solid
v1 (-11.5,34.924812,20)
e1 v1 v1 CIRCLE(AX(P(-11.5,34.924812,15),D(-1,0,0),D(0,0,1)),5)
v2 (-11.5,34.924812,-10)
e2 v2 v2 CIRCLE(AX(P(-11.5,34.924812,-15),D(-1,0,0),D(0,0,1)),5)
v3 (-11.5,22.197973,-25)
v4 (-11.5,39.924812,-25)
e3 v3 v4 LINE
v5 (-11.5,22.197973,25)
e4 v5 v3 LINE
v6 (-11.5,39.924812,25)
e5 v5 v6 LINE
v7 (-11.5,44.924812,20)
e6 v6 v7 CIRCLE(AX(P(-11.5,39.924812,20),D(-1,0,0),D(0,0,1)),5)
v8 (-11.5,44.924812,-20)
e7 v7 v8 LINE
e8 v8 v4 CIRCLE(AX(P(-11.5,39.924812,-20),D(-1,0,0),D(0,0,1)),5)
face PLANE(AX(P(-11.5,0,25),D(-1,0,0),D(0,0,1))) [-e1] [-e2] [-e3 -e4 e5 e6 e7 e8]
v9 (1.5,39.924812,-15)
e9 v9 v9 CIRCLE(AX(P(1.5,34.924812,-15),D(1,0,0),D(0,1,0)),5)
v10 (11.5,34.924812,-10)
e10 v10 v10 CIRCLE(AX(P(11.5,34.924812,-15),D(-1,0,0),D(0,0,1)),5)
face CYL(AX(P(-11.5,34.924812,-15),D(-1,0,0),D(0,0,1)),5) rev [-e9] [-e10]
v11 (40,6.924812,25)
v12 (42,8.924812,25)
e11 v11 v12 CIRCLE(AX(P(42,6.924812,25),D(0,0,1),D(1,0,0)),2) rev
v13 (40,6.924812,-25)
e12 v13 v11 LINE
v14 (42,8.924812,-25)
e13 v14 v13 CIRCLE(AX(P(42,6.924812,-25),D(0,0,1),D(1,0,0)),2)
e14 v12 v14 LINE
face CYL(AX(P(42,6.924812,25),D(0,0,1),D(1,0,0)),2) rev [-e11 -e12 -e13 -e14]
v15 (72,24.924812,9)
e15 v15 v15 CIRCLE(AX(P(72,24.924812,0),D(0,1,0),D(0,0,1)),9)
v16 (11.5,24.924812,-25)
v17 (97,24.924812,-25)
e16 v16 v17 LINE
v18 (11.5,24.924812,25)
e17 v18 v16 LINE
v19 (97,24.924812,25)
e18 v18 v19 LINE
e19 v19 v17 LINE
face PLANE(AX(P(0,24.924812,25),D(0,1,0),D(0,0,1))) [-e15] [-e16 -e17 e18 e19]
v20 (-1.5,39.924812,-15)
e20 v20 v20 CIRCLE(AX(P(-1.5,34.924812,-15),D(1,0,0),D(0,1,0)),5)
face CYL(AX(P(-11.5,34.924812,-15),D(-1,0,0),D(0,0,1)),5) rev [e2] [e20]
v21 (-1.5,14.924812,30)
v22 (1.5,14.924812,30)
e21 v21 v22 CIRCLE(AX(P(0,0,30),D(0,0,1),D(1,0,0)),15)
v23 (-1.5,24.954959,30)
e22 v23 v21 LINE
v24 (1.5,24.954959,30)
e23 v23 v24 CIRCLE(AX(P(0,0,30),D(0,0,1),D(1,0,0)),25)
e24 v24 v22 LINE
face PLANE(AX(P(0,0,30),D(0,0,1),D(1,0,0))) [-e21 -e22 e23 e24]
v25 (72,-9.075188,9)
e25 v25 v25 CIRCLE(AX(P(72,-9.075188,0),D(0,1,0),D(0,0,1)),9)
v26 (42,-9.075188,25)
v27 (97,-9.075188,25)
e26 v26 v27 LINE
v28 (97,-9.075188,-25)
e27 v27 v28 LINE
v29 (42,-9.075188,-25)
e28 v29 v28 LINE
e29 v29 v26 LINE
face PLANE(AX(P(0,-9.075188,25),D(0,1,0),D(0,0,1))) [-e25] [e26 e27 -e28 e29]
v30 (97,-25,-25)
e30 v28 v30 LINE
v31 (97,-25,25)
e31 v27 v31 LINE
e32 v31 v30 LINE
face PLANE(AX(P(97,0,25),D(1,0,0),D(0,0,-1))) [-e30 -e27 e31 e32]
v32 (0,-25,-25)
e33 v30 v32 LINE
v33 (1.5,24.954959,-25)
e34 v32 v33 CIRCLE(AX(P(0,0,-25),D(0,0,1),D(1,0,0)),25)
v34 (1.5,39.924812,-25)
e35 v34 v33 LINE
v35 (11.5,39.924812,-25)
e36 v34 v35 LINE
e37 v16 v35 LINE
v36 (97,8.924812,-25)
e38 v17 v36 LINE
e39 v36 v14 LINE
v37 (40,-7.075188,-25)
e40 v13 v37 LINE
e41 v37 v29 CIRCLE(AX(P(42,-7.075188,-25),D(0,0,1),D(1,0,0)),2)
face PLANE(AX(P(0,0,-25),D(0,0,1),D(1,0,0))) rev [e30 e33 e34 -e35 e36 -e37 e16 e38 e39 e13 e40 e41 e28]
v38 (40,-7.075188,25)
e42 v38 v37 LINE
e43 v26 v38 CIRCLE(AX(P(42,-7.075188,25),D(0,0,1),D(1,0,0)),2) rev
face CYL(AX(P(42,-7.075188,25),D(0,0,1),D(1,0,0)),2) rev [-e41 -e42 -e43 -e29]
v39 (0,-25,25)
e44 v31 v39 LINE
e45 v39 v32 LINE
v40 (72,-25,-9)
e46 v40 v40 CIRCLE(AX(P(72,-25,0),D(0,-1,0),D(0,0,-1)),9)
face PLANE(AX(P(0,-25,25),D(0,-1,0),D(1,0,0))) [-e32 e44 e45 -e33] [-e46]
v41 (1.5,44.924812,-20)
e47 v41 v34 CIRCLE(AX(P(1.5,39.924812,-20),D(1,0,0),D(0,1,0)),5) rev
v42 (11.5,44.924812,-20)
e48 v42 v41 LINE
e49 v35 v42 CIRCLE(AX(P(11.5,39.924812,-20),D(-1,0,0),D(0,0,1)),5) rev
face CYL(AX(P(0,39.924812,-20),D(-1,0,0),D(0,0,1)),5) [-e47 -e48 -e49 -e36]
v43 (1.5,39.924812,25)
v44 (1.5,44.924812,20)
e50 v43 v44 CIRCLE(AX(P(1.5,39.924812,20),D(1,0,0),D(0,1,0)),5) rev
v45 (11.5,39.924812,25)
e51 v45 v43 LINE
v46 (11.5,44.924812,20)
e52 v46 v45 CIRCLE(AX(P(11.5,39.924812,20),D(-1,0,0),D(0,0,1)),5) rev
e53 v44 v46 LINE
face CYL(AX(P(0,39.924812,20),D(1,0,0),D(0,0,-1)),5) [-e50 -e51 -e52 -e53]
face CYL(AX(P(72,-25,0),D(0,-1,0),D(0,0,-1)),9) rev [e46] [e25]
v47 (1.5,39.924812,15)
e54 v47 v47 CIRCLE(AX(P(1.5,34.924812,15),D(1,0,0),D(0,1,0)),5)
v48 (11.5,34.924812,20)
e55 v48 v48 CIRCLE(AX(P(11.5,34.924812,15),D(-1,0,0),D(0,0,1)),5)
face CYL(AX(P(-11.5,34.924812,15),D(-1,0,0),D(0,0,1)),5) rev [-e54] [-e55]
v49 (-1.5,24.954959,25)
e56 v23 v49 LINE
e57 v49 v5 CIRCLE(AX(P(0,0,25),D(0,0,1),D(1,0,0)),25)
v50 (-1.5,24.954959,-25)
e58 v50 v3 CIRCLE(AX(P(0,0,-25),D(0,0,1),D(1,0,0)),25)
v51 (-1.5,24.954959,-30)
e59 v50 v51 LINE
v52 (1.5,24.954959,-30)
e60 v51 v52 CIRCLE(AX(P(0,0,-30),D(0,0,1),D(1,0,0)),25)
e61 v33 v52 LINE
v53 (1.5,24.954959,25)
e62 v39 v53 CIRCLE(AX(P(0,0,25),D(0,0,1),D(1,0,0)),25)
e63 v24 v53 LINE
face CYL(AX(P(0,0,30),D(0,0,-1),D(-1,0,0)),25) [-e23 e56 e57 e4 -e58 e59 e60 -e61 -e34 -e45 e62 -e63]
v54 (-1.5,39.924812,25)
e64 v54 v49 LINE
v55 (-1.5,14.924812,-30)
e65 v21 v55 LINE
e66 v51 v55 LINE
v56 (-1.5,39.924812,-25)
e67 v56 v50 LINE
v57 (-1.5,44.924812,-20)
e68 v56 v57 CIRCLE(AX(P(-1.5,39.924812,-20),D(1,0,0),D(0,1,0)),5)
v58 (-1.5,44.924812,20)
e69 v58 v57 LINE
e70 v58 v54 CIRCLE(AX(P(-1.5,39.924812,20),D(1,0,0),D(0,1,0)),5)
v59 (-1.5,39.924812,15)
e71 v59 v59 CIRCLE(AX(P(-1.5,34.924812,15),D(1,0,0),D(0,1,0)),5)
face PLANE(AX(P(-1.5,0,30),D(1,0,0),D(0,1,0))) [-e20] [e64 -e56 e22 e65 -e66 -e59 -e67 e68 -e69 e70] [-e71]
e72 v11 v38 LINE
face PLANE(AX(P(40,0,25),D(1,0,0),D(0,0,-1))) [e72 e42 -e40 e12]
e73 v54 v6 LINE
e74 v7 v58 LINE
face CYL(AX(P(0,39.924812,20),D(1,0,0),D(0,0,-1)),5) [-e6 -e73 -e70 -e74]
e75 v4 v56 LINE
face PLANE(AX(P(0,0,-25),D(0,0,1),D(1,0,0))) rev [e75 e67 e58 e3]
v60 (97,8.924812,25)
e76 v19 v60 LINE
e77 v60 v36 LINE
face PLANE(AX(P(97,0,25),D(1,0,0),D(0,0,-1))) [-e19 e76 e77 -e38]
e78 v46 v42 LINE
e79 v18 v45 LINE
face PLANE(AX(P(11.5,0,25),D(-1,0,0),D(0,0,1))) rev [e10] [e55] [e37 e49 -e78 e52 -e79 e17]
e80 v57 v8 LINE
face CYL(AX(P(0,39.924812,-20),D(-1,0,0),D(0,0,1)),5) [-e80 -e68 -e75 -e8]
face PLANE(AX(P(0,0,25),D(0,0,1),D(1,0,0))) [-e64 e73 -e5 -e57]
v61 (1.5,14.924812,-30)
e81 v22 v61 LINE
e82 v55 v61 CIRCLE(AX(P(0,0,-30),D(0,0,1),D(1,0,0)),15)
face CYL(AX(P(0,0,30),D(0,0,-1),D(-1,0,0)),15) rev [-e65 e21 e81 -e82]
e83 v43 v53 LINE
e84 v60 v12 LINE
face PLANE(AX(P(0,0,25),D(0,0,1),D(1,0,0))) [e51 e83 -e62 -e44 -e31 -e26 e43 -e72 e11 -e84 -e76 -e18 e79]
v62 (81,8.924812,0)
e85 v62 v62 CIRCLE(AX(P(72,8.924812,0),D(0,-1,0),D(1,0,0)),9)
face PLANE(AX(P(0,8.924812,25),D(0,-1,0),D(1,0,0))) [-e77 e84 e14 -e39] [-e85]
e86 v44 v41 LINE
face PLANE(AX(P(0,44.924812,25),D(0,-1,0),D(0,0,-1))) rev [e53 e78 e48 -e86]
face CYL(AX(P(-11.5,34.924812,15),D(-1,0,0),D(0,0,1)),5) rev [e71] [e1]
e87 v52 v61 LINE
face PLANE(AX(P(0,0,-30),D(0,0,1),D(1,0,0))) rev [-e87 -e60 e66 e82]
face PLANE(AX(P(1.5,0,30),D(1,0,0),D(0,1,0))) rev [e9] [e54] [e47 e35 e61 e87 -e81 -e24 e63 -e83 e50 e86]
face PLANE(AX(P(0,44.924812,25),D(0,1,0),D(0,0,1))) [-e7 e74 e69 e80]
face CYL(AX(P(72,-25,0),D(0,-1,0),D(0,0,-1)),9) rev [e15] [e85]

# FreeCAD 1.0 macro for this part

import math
import FreeCAD as App
import Part
import Sketcher

V = App.Vector


def edges_at(feature, points):
    """Names of the edges that pass closest to the given points."""
    edges = feature.Shape.Edges
    near = lambda p: min(range(len(edges)), key=lambda i: edges[i].distToShape(Part.Vertex(*p))[0])
    return sorted({f"Edge{near(p) + 1}" for p in points})

doc = App.newDocument("Part")
body = doc.addObject("PartDesign::Body", "Body")

# Sketch on XY plane
sketch1 = body.newObject("Sketcher::SketchObject", "Sketch")
sketch1.AttachmentSupport = (doc.getObject("XY_Plane"), [""])
sketch1.MapMode = "FlatFace"
sketch1.addGeometry([
    Part.ArcOfCircle(Part.Circle(V(0, 0, 0), V(0, 0, 1), 25), math.radians(93), math.radians(117)),  # 0
    Part.ArcOfCircle(Part.Circle(V(0, 0, 0), V(0, 0, 1), 25), math.radians(117), math.radians(270)),  # 1
    Part.ArcOfCircle(Part.Circle(V(0, 0, 0), V(0, 0, 1), 25), math.radians(-90), math.radians(0)),  # 2
    Part.ArcOfCircle(Part.Circle(V(0, 0, 0), V(0, 0, 1), 25), math.radians(0), math.radians(63)),  # 3
    Part.ArcOfCircle(Part.Circle(V(0, 0, 0), V(0, 0, 1), 25), math.radians(63), math.radians(87)),  # 4
    Part.LineSegment(V(2, 25, 0), V(2, 15, 0)),  # 5
    Part.ArcOfCircle(Part.Circle(V(0, 0, 0), V(0, 0, 1), 15), math.radians(0), math.radians(84)),  # 6
    Part.ArcOfCircle(Part.Circle(V(0, 0, 0), V(0, 0, 1), 15), math.radians(96), math.radians(360)),  # 7
    Part.LineSegment(V(-2, 15, 0), V(-2, 25, 0)),  # 8
], False)
sketch1.addConstraint([
    Sketcher.Constraint("Tangent", 0, 2, 1, 1),
    Sketcher.Constraint("Tangent", 1, 2, 2, 1),
    Sketcher.Constraint("Tangent", 2, 2, 3, 1),
    Sketcher.Constraint("Tangent", 3, 2, 4, 1),
    Sketcher.Constraint("Coincident", 4, 2, 5, 1),
    Sketcher.Constraint("Coincident", 5, 2, 6, 2),
    Sketcher.Constraint("Tangent", 6, 1, 7, 2),
    Sketcher.Constraint("Coincident", 7, 1, 8, 1),
    Sketcher.Constraint("Coincident", 8, 2, 0, 1),
    Sketcher.Constraint("Vertical", 5),
    Sketcher.Constraint("Vertical", 8),
    Sketcher.Constraint("Coincident", 0, 3, -1, 1),
    Sketcher.Constraint("Coincident", 2, 3, -1, 1),
    Sketcher.Constraint("Coincident", 4, 3, -1, 1),
    Sketcher.Constraint("Coincident", 6, 3, -1, 1),
    Sketcher.Constraint("Equal", 6, 7),
    Sketcher.Constraint("PointOnObject", 1, 2, -2),
    Sketcher.Constraint("PointOnObject", 2, 2, -1),
    Sketcher.Constraint("PointOnObject", 6, 1, -1),
    Sketcher.Constraint("Horizontal", 0, 2, 3, 2),
    Sketcher.Constraint("Horizontal", 5, 2, 7, 1),
    Sketcher.Constraint("Radius", 0, 25.0),
    Sketcher.Constraint("Radius", 6, 15.0),
    Sketcher.Constraint("DistanceX", 0, 2, 3, 2, 23.0),
    Sketcher.Constraint("DistanceX", 4, 2, 3, 2, 10.0),
])
pad1 = body.newObject("PartDesign::Pad", "Pad")
pad1.Profile = sketch1
pad1.Length = 60
pad1.Midplane = True

# Sketch on XY plane
sketch2 = body.newObject("Sketcher::SketchObject", "Sketch001")
sketch2.AttachmentSupport = (doc.getObject("XY_Plane"), [""])
sketch2.MapMode = "FlatFace"
sketch2.addGeometry([
    Part.ArcOfCircle(Part.Circle(V(0, 0, 0), V(0, 0, 1), 25), math.radians(-90), math.radians(0)),  # 0
    Part.LineSegment(V(0, -25, 0), V(97, -25, 0)),  # 1
    Part.LineSegment(V(97, -25, 0), V(97, -9, 0)),  # 2
    Part.LineSegment(V(97, -9, 0), V(40, -9, 0)),  # 3
    Part.LineSegment(V(40, -9, 0), V(40, 9, 0)),  # 4
    Part.LineSegment(V(40, 9, 0), V(97, 9, 0)),  # 5
    Part.LineSegment(V(97, 9, 0), V(97, 25, 0)),  # 6
    Part.LineSegment(V(97, 25, 0), V(12, 25, 0)),  # 7
    Part.LineSegment(V(12, 25, 0), V(12, 45, 0)),  # 8
    Part.LineSegment(V(12, 45, 0), V(2, 45, 0)),  # 9
    Part.LineSegment(V(2, 45, 0), V(2, 25, 0)),  # 10
    Part.ArcOfCircle(Part.Circle(V(0, 0, 0), V(0, 0, 1), 25), math.radians(63), math.radians(87)),  # 11
    Part.ArcOfCircle(Part.Circle(V(0, 0, 0), V(0, 0, 1), 25), math.radians(0), math.radians(63)),  # 12
    Part.LineSegment(V(-12, 45, 0), V(-12, 22, 0)),  # 13
    Part.ArcOfCircle(Part.Circle(V(0, 0, 0), V(0, 0, 1), 25), math.radians(93), math.radians(117)),  # 14
    Part.LineSegment(V(-2, 25, 0), V(-2, 45, 0)),  # 15
    Part.LineSegment(V(-2, 45, 0), V(-12, 45, 0)),  # 16
], False)
sketch2.addConstraint([
    Sketcher.Constraint("Tangent", 0, 1, 1, 1),
    Sketcher.Constraint("Coincident", 1, 2, 2, 1),
    Sketcher.Constraint("Coincident", 2, 2, 3, 1),
    Sketcher.Constraint("Coincident", 3, 2, 4, 1),
    Sketcher.Constraint("Coincident", 4, 2, 5, 1),
    Sketcher.Constraint("Coincident", 5, 2, 6, 1),
    Sketcher.Constraint("Coincident", 6, 2, 7, 1),
    Sketcher.Constraint("Coincident", 7, 2, 8, 1),
    Sketcher.Constraint("Coincident", 8, 2, 9, 1),
    Sketcher.Constraint("Coincident", 9, 2, 10, 1),
    Sketcher.Constraint("Coincident", 10, 2, 11, 2),
    Sketcher.Constraint("Tangent", 11, 1, 12, 2),
    Sketcher.Constraint("Tangent", 12, 1, 0, 2),
    Sketcher.Constraint("Coincident", 13, 2, 14, 2),
    Sketcher.Constraint("Coincident", 14, 1, 15, 1),
    Sketcher.Constraint("Coincident", 15, 2, 16, 1),
    Sketcher.Constraint("Coincident", 16, 2, 13, 1),
    Sketcher.Constraint("Horizontal", 1),
    Sketcher.Constraint("Vertical", 2),
    Sketcher.Constraint("Horizontal", 3),
    Sketcher.Constraint("Vertical", 4),
    Sketcher.Constraint("Horizontal", 5),
    Sketcher.Constraint("Vertical", 6),
    Sketcher.Constraint("Horizontal", 7),
    Sketcher.Constraint("Vertical", 8),
    Sketcher.Constraint("Horizontal", 9),
    Sketcher.Constraint("Vertical", 10),
    Sketcher.Constraint("Vertical", 13),
    Sketcher.Constraint("Vertical", 15),
    Sketcher.Constraint("Horizontal", 16),
    Sketcher.Constraint("Coincident", 0, 3, -1, 1),
    Sketcher.Constraint("Coincident", 11, 3, -1, 1),
    Sketcher.Constraint("Coincident", 14, 3, -1, 1),
    Sketcher.Constraint("Equal", 12, 14),
    Sketcher.Constraint("Symmetric", 9, 2, 15, 2, -2),
    Sketcher.Constraint("PointOnObject", 12, 1, -1),
    Sketcher.Constraint("Horizontal", 11, 1, 13, 2),
    Sketcher.Constraint("Vertical", 2, 2, 5, 2),
    Sketcher.Constraint("Vertical", 8, 2, 11, 1),
    Sketcher.Constraint("Radius", 0, 25.0),
    Sketcher.Constraint("DistanceX", 1, 1, 1, 2, 97.0),
    Sketcher.Constraint("DistanceX", 3, 2, 3, 1, 57.0),
    Sketcher.Constraint("DistanceX", 9, 2, 9, 1, 10.0),
    Sketcher.Constraint("DistanceY", 4, 1, 4, 2, 18.0),
    Sketcher.Constraint("DistanceY", 6, 1, 6, 2, 16.0),
    Sketcher.Constraint("DistanceY", 8, 1, 8, 2, 20.0),
    Sketcher.Constraint("DistanceX", 7, 2, 7, 1, 85.5),
    Sketcher.Constraint("DistanceY", 2, 1, 2, 2, 15.924812),
])
pad2 = body.newObject("PartDesign::Pad", "Pad001")
pad2.Profile = sketch2
pad2.Length = 50
pad2.Midplane = True

# Sketch on XZ plane
sketch3 = body.newObject("Sketcher::SketchObject", "Sketch002")
sketch3.AttachmentSupport = (doc.getObject("XZ_Plane"), [""])
sketch3.MapMode = "FlatFace"
sketch3.AttachmentOffset = App.Placement(V(0, 0, 25), App.Rotation())
sketch3.addGeometry(Part.Circle(V(72, 0, 0), V(0, 0, 1), 9), False)
sketch3.addConstraint([
    Sketcher.Constraint("PointOnObject", 0, 3, -1),
    Sketcher.Constraint("Diameter", 0, 18.0),
    Sketcher.Constraint("DistanceX", -1, 1, 0, 3, 72.0),
])
doc.recompute()
hole = body.newObject("PartDesign::Hole", "Hole")
hole.Profile = sketch3
hole.ThreadType = "None"
hole.Diameter = 18
hole.DepthType = "ThroughAll"

# Sketch on YZ plane
sketch4 = body.newObject("Sketcher::SketchObject", "Sketch003")
sketch4.AttachmentSupport = (doc.getObject("YZ_Plane"), [""])
sketch4.MapMode = "FlatFace"
sketch4.AttachmentOffset = App.Placement(V(0, 0, -11.5), App.Rotation())
sketch4.addGeometry([
    Part.Circle(V(35, 15, 0), V(0, 0, 1), 5),
    Part.Circle(V(35, -15, 0), V(0, 0, 1), 5),
], False)
sketch4.addConstraint([
    Sketcher.Constraint("Equal", 0, 1),
    Sketcher.Constraint("Symmetric", 0, 3, 1, 3, -1),
    Sketcher.Constraint("Diameter", 0, 10.0),
    Sketcher.Constraint("DistanceY", -1, 1, 0, 3, 15.0),
    Sketcher.Constraint("DistanceX", -1, 1, 0, 3, 34.924812),
])
doc.recompute()
hole2 = body.newObject("PartDesign::Hole", "Hole001")
hole2.Profile = sketch4
hole2.ThreadType = "None"
hole2.Diameter = 10
hole2.DepthType = "ThroughAll"
hole2.Reversed = True
doc.recompute()

fillet = body.newObject("PartDesign::Fillet", "Fillet")
fillet.Base = (hole2, edges_at(hole2, [
    (6.5, 44.925, -25),
    (6.5, 44.925, 25),
    (-6.5, 44.925, 25),
    (-6.5, 44.925, -25),
]))
fillet.Radius = 5
doc.recompute()

fillet2 = body.newObject("PartDesign::Fillet", "Fillet001")
fillet2.Base = (fillet, edges_at(fillet, [(40, -9.075, 0), (40, 8.925, 0)]))
fillet2.Radius = 2

doc.recompute()
